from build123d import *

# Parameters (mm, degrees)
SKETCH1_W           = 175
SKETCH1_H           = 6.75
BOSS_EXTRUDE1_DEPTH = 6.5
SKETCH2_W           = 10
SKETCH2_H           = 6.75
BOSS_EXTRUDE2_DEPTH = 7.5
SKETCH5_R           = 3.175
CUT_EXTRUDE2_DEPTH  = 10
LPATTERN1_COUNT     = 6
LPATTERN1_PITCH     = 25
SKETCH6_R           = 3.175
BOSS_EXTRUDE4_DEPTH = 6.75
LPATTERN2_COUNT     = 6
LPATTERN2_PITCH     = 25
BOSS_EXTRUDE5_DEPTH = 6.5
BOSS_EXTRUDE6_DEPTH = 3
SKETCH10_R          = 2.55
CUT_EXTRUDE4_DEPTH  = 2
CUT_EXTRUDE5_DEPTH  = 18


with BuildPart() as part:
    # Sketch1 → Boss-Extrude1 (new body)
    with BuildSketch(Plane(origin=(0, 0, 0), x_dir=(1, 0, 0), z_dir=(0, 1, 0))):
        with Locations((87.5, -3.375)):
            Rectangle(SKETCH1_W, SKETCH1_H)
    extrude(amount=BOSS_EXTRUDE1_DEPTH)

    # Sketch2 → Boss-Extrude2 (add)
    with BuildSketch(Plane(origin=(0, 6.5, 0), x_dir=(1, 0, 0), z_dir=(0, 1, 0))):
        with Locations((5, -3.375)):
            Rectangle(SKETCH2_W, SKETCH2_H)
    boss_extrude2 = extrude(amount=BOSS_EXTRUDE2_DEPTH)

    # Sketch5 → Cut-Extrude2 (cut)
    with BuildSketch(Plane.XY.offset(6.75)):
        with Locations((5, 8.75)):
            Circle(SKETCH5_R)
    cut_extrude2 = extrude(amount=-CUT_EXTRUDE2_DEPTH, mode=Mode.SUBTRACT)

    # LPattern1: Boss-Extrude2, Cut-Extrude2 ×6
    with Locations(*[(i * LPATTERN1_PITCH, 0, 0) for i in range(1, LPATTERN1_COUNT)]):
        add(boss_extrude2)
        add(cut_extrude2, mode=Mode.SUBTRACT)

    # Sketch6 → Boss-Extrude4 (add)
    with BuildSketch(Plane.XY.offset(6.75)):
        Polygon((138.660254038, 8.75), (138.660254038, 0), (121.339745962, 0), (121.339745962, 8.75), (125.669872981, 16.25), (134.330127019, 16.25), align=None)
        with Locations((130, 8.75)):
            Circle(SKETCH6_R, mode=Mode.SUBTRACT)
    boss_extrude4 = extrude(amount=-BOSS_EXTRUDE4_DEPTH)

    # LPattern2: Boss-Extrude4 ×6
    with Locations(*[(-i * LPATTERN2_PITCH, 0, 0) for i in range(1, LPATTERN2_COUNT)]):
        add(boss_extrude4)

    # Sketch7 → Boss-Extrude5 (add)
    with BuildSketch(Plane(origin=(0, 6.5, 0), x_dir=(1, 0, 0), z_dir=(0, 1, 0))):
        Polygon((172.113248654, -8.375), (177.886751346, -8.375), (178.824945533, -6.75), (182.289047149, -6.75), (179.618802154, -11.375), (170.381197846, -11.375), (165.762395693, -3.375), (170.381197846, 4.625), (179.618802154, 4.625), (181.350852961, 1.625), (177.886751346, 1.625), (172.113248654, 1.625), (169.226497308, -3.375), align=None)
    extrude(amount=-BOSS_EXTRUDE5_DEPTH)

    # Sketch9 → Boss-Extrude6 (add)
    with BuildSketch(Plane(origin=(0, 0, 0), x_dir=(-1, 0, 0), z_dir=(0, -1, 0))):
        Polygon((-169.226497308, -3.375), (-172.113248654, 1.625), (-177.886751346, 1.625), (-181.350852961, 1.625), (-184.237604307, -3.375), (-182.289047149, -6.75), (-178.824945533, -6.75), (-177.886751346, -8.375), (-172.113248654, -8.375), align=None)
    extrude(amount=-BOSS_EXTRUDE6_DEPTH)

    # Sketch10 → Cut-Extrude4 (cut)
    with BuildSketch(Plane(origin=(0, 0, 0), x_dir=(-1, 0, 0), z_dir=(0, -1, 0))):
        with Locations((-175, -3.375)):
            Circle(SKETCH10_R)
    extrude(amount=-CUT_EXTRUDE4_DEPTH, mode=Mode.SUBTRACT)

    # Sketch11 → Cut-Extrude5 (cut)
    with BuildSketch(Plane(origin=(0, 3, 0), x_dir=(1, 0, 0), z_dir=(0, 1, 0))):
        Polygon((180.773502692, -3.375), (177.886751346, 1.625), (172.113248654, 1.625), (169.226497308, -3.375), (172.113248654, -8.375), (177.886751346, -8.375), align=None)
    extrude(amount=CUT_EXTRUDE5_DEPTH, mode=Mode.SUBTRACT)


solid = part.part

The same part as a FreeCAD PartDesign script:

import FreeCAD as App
import Part
import Sketcher
from FreeCAD import Vector
Q = App.Units.Quantity

doc = App.newDocument("Part")
body = doc.addObject("PartDesign::Body", "Body")

# Sketch on XZ plane
sketch1 = doc.addObject("Sketcher::SketchObject", "Sketch")
body.addObject(sketch1)
sketch1.AttachmentSupport = (doc.XZ_Plane, [""])
sketch1.MapMode = "FlatFace"
sketch1.addGeometry(Part.LineSegment(Vector(0, 0, 0), Vector(0, 7, 0)), False)
sketch1.addGeometry(Part.LineSegment(Vector(0, 7, 0), Vector(175, 7, 0)), False)
sketch1.addGeometry(Part.LineSegment(Vector(175, 7, 0), Vector(175, 0, 0)), False)
sketch1.addGeometry(Part.LineSegment(Vector(175, 0, 0), Vector(0, 0, 0)), False)
sketch1.addConstraint(Sketcher.Constraint("Coincident", 0, 2, 1, 1))
sketch1.addConstraint(Sketcher.Constraint("Coincident", 1, 2, 2, 1))
sketch1.addConstraint(Sketcher.Constraint("Coincident", 2, 2, 3, 1))
sketch1.addConstraint(Sketcher.Constraint("Coincident", 3, 2, 0, 1))
sketch1.addConstraint(Sketcher.Constraint("Vertical", 0))
sketch1.addConstraint(Sketcher.Constraint("Horizontal", 1))
sketch1.addConstraint(Sketcher.Constraint("Vertical", 2))
sketch1.addConstraint(Sketcher.Constraint("Horizontal", 3))
sketch1.addConstraint(Sketcher.Constraint("Coincident", 3, 2, -1, 1))
sketch1.addConstraint(Sketcher.Constraint("DistanceX", 1, 1, 1, 2, Q("175 mm")))
sketch1.addConstraint(Sketcher.Constraint("DistanceY", 0, 1, 0, 2, Q("6.75 mm")))
pad1 = doc.addObject("PartDesign::Pad", "Pad")
body.addObject(pad1)
pad1.Profile = sketch1
pad1.Length = 6.5
pad1.Reversed = True

# Sketch on XZ plane
sketch2 = doc.addObject("Sketcher::SketchObject", "Sketch001")
body.addObject(sketch2)
sketch2.AttachmentSupport = (doc.XZ_Plane, [""])
sketch2.MapMode = "FlatFace"
sketch2.AttachmentOffset = App.Placement(Vector(0, 0, -6.5), App.Rotation())
sketch2.addGeometry(Part.LineSegment(Vector(0, 0, 0), Vector(0, 7, 0)), False)
sketch2.addGeometry(Part.LineSegment(Vector(0, 7, 0), Vector(10, 7, 0)), False)
sketch2.addGeometry(Part.LineSegment(Vector(10, 7, 0), Vector(10, 0, 0)), False)
sketch2.addGeometry(Part.LineSegment(Vector(10, 0, 0), Vector(0, 0, 0)), False)
sketch2.addConstraint(Sketcher.Constraint("Coincident", 0, 2, 1, 1))
sketch2.addConstraint(Sketcher.Constraint("Coincident", 1, 2, 2, 1))
sketch2.addConstraint(Sketcher.Constraint("Coincident", 2, 2, 3, 1))
sketch2.addConstraint(Sketcher.Constraint("Coincident", 3, 2, 0, 1))
sketch2.addConstraint(Sketcher.Constraint("Vertical", 0))
sketch2.addConstraint(Sketcher.Constraint("Horizontal", 1))
sketch2.addConstraint(Sketcher.Constraint("Vertical", 2))
sketch2.addConstraint(Sketcher.Constraint("Horizontal", 3))
sketch2.addConstraint(Sketcher.Constraint("Coincident", 3, 2, -1, 1))
sketch2.addConstraint(Sketcher.Constraint("DistanceX", 1, 1, 1, 2, Q("10 mm")))
sketch2.addConstraint(Sketcher.Constraint("DistanceY", 0, 1, 0, 2, Q("6.75 mm")))
pad2 = doc.addObject("PartDesign::Pad", "Pad001")
body.addObject(pad2)
pad2.Profile = sketch2
pad2.Length = 7.5
pad2.Reversed = True

# Sketch on XY plane
sketch3 = doc.addObject("Sketcher::SketchObject", "Sketch002")
body.addObject(sketch3)
sketch3.AttachmentSupport = (doc.XY_Plane, [""])
sketch3.MapMode = "FlatFace"
sketch3.AttachmentOffset = App.Placement(Vector(0, 0, 6.75), App.Rotation())
sketch3.addGeometry(Part.Circle(Vector(5, 8.8, 0), Vector(0, 0, 1), 3.2), False)
sketch3.addConstraint(Sketcher.Constraint("Diameter", 0, Q("6.35 mm")))
sketch3.addConstraint(Sketcher.Constraint("DistanceX", -1, 1, 0, 3, Q("5 mm")))
sketch3.addConstraint(Sketcher.Constraint("DistanceY", -1, 1, 0, 3, Q("8.75 mm")))
pocket1 = doc.addObject("PartDesign::Pocket", "Pocket")
body.addObject(pocket1)
pocket1.Profile = sketch3
pocket1.Length = 10
doc.recompute()

linearpattern = doc.addObject("PartDesign::LinearPattern", "LinearPattern")
body.addObject(linearpattern)
linearpattern.Originals = [pad2, pocket1]
linearpattern.Direction = (doc.X_Axis, [""])
linearpattern.Mode = "offset"
linearpattern.Offset = 25
linearpattern.Occurrences = 6
body.Tip = linearpattern

# Sketch on XY plane
sketch4 = doc.addObject("Sketcher::SketchObject", "Sketch003")
body.addObject(sketch4)
sketch4.AttachmentSupport = (doc.XY_Plane, [""])
sketch4.MapMode = "FlatFace"
sketch4.AttachmentOffset = App.Placement(Vector(0, 0, 6.75), App.Rotation())
sketch4.addGeometry(Part.LineSegment(Vector(138.7, 0, 0), Vector(138.7, 8.8, 0)), False)
sketch4.addGeometry(Part.LineSegment(Vector(138.7, 8.8, 0), Vector(134.3, 16.2, 0)), False)
sketch4.addGeometry(Part.LineSegment(Vector(134.3, 16.2, 0), Vector(125.7, 16.2, 0)), False)
sketch4.addGeometry(Part.LineSegment(Vector(125.7, 16.2, 0), Vector(121.3, 8.8, 0)), False)
sketch4.addGeometry(Part.LineSegment(Vector(121.3, 8.8, 0), Vector(121.3, 0, 0)), False)
sketch4.addGeometry(Part.LineSegment(Vector(121.3, 0, 0), Vector(138.7, 0, 0)), False)
sketch4.addGeometry(Part.Circle(Vector(130, 8.8, 0), Vector(0, 0, 1), 3.2), False)
sketch4.addConstraint(Sketcher.Constraint("Coincident", 0, 2, 1, 1))
sketch4.addConstraint(Sketcher.Constraint("Coincident", 1, 2, 2, 1))
sketch4.addConstraint(Sketcher.Constraint("Coincident", 2, 2, 3, 1))
sketch4.addConstraint(Sketcher.Constraint("Coincident", 3, 2, 4, 1))
sketch4.addConstraint(Sketcher.Constraint("Coincident", 4, 2, 5, 1))
sketch4.addConstraint(Sketcher.Constraint("Coincident", 5, 2, 0, 1))
sketch4.addConstraint(Sketcher.Constraint("Vertical", 0))
sketch4.addConstraint(Sketcher.Constraint("Horizontal", 2))
sketch4.addConstraint(Sketcher.Constraint("Vertical", 4))
sketch4.addConstraint(Sketcher.Constraint("Horizontal", 5))
sketch4.addConstraint(Sketcher.Constraint("PointOnObject", 4, 2, -1))
sketch4.addConstraint(Sketcher.Constraint("Horizontal", 6, 3, 0, 2))
sketch4.addConstraint(Sketcher.Constraint("Horizontal", 0, 2, 3, 2))
sketch4.addConstraint(Sketcher.Constraint("Equal", 1, 3))
sketch4.addConstraint(Sketcher.Constraint("Diameter", 6, Q("6.35 mm")))
sketch4.addConstraint(Sketcher.Constraint("Angle", 1, Q("120 deg")))
sketch4.addConstraint(Sketcher.Constraint("DistanceX", -1, 1, 6, 3, Q("130 mm")))
sketch4.addConstraint(Sketcher.Constraint("DistanceY", 0, 1, 0, 2, Q("8.75 mm")))
sketch4.addConstraint(Sketcher.Constraint("DistanceY", 6, 3, 1, 2, Q("7.5 mm")))
sketch4.addConstraint(Sketcher.Constraint("DistanceX", 5, 1, 5, 2, Q("17.320508 mm")))
sketch4.addConstraint(Sketcher.Constraint("DistanceX", -1, 1, 0, 2, Q("138.660254 mm")))
pad3 = doc.addObject("PartDesign::Pad", "Pad002")
body.addObject(pad3)
pad3.Profile = sketch4
pad3.Length = 6.75
pad3.Reversed = True
doc.recompute()

linearpattern2 = doc.addObject("PartDesign::LinearPattern", "LinearPattern001")
body.addObject(linearpattern2)
linearpattern2.Originals = [pad3]
linearpattern2.Direction = (doc.X_Axis, [""])
linearpattern2.Mode = "offset"
linearpattern2.Offset = 25
linearpattern2.Occurrences = 6
linearpattern2.Reversed = True
body.Tip = linearpattern2

# Sketch on XZ plane
sketch5 = doc.addObject("Sketcher::SketchObject", "Sketch004")
body.addObject(sketch5)
sketch5.AttachmentSupport = (doc.XZ_Plane, [""])
sketch5.MapMode = "FlatFace"
sketch5.AttachmentOffset = App.Placement(Vector(0, 0, -6.5), App.Rotation())
sketch5.addGeometry(Part.LineSegment(Vector(177.9, 8.4, 0), Vector(172.1, 8.4, 0)), False)
sketch5.addGeometry(Part.LineSegment(Vector(172.1, 8.4, 0), Vector(169.2, 3.4, 0)), False)
sketch5.addGeometry(Part.LineSegment(Vector(169.2, 3.4, 0), Vector(172.1, -1.6, 0)), False)
sketch5.addGeometry(Part.LineSegment(Vector(172.1, -1.6, 0), Vector(181.4, -1.6, 0)), False)
sketch5.addGeometry(Part.LineSegment(Vector(181.4, -1.6, 0), Vector(179.6, -4.6, 0)), False)
sketch5.addGeometry(Part.LineSegment(Vector(179.6, -4.6, 0), Vector(170.4, -4.6, 0)), False)
sketch5.addGeometry(Part.LineSegment(Vector(170.4, -4.6, 0), Vector(165.8, 3.4, 0)), False)
sketch5.addGeometry(Part.LineSegment(Vector(165.8, 3.4, 0), Vector(170.4, 11.4, 0)), False)
sketch5.addGeometry(Part.LineSegment(Vector(170.4, 11.4, 0), Vector(179.6, 11.4, 0)), False)
sketch5.addGeometry(Part.LineSegment(Vector(179.6, 11.4, 0), Vector(182.3, 6.8, 0)), False)
sketch5.addGeometry(Part.LineSegment(Vector(182.3, 6.8, 0), Vector(178.8, 6.8, 0)), False)
sketch5.addGeometry(Part.LineSegment(Vector(178.8, 6.8, 0), Vector(177.9, 8.4, 0)), False)
sketch5.addConstraint(Sketcher.Constraint("Coincident", 0, 2, 1, 1))
sketch5.addConstraint(Sketcher.Constraint("Coincident", 1, 2, 2, 1))
sketch5.addConstraint(Sketcher.Constraint("Coincident", 2, 2, 3, 1))
sketch5.addConstraint(Sketcher.Constraint("Coincident", 3, 2, 4, 1))
sketch5.addConstraint(Sketcher.Constraint("Coincident", 4, 2, 5, 1))
sketch5.addConstraint(Sketcher.Constraint("Coincident", 5, 2, 6, 1))
sketch5.addConstraint(Sketcher.Constraint("Coincident", 6, 2, 7, 1))
sketch5.addConstraint(Sketcher.Constraint("Coincident", 7, 2, 8, 1))
sketch5.addConstraint(Sketcher.Constraint("Coincident", 8, 2, 9, 1))
sketch5.addConstraint(Sketcher.Constraint("Coincident", 9, 2, 10, 1))
sketch5.addConstraint(Sketcher.Constraint("Coincident", 10, 2, 11, 1))
sketch5.addConstraint(Sketcher.Constraint("Coincident", 11, 2, 0, 1))
sketch5.addConstraint(Sketcher.Constraint("Horizontal", 0))
sketch5.addConstraint(Sketcher.Constraint("Horizontal", 3))
sketch5.addConstraint(Sketcher.Constraint("Horizontal", 5))
sketch5.addConstraint(Sketcher.Constraint("Horizontal", 8))
sketch5.addConstraint(Sketcher.Constraint("Horizontal", 10))
sketch5.addConstraint(Sketcher.Constraint("Parallel", 1, 4))
sketch5.addConstraint(Sketcher.Constraint("Parallel", 2, 6))
sketch5.addConstraint(Sketcher.Constraint("Parallel", 4, 7))
sketch5.addConstraint(Sketcher.Constraint("Parallel", 6, 9))
sketch5.addConstraint(Sketcher.Constraint("Parallel", 9, 11))
sketch5.addConstraint(Sketcher.Constraint("Horizontal", 1, 2, 6, 2))
sketch5.addConstraint(Sketcher.Constraint("Vertical", 0, 2, 2, 2))
sketch5.addConstraint(Sketcher.Constraint("Vertical", 5, 2, 7, 2))
sketch5.addConstraint(Sketcher.Constraint("Vertical", 4, 2, 8, 2))
sketch5.addConstraint(Sketcher.Constraint("Equal", 3, 5))
sketch5.addConstraint(Sketcher.Constraint("Equal", 1, 2))
sketch5.addConstraint(Sketcher.Constraint("Angle", 1, Q("-120 deg")))
sketch5.addConstraint(Sketcher.Constraint("DistanceY", 1, 2, 0, 2, Q("5 mm")))
sketch5.addConstraint(Sketcher.Constraint("DistanceY", 4, 2, 3, 2, Q("3 mm")))
sketch5.addConstraint(Sketcher.Constraint("DistanceY", -1, 1, 9, 2, Q("6.75 mm")))
sketch5.addConstraint(Sketcher.Constraint("DistanceX", 10, 2, 10, 1, Q("3.464102 mm")))
sketch5.addConstraint(Sketcher.Constraint("DistanceY", -1, 1, 0, 2, Q("8.375 mm")))
sketch5.addConstraint(Sketcher.Constraint("DistanceX", 0, 2, 9, 2, Q("10.175798 mm")))
sketch5.addConstraint(Sketcher.Constraint("DistanceX", -1, 1, 0, 2, Q("172.113249 mm")))
pad4 = doc.addObject("PartDesign::Pad", "Pad003")
body.addObject(pad4)
pad4.Profile = sketch5
pad4.Length = 6.5

# Sketch on XZ plane
sketch6 = doc.addObject("Sketcher::SketchObject", "Sketch005")
body.addObject(sketch6)
sketch6.AttachmentSupport = (doc.XZ_Plane, [""])
sketch6.MapMode = "FlatFace"
sketch6.addGeometry(Part.LineSegment(Vector(169.2, 3.4, 0), Vector(172.1, -1.6, 0)), False)
sketch6.addGeometry(Part.LineSegment(Vector(172.1, -1.6, 0), Vector(181.4, -1.6, 0)), False)
sketch6.addGeometry(Part.LineSegment(Vector(181.4, -1.6, 0), Vector(184.2, 3.4, 0)), False)
sketch6.addGeometry(Part.LineSegment(Vector(184.2, 3.4, 0), Vector(182.3, 6.8, 0)), False)
sketch6.addGeometry(Part.LineSegment(Vector(182.3, 6.8, 0), Vector(178.8, 6.8, 0)), False)
sketch6.addGeometry(Part.LineSegment(Vector(178.8, 6.8, 0), Vector(177.9, 8.4, 0)), False)
sketch6.addGeometry(Part.LineSegment(Vector(177.9, 8.4, 0), Vector(172.1, 8.4, 0)), False)
sketch6.addGeometry(Part.LineSegment(Vector(172.1, 8.4, 0), Vector(169.2, 3.4, 0)), False)
sketch6.addConstraint(Sketcher.Constraint("Coincident", 0, 2, 1, 1))
sketch6.addConstraint(Sketcher.Constraint("Coincident", 1, 2, 2, 1))
sketch6.addConstraint(Sketcher.Constraint("Coincident", 2, 2, 3, 1))
sketch6.addConstraint(Sketcher.Constraint("Coincident", 3, 2, 4, 1))
sketch6.addConstraint(Sketcher.Constraint("Coincident", 4, 2, 5, 1))
sketch6.addConstraint(Sketcher.Constraint("Coincident", 5, 2, 6, 1))
sketch6.addConstraint(Sketcher.Constraint("Coincident", 6, 2, 7, 1))
sketch6.addConstraint(Sketcher.Constraint("Coincident", 7, 2, 0, 1))
sketch6.addConstraint(Sketcher.Constraint("Horizontal", 1))
sketch6.addConstraint(Sketcher.Constraint("Horizontal", 4))
sketch6.addConstraint(Sketcher.Constraint("Horizontal", 6))
sketch6.addConstraint(Sketcher.Constraint("Parallel", 0, 3))
sketch6.addConstraint(Sketcher.Constraint("Parallel", 3, 5))
sketch6.addConstraint(Sketcher.Constraint("Parallel", 2, 7))
sketch6.addConstraint(Sketcher.Constraint("Horizontal", 2, 2, 7, 2))
sketch6.addConstraint(Sketcher.Constraint("Vertical", 0, 2, 6, 2))
sketch6.addConstraint(Sketcher.Constraint("Equal", 0, 2))
sketch6.addConstraint(Sketcher.Constraint("Angle", 0, Q("-60 deg")))
sketch6.addConstraint(Sketcher.Constraint("DistanceY", 1, 2, 2, 2, Q("5 mm")))
sketch6.addConstraint(Sketcher.Constraint("DistanceY", -1, 1, 3, 2, Q("6.75 mm")))
sketch6.addConstraint(Sketcher.Constraint("DistanceX", 4, 2, 4, 1, Q("3.464102 mm")))
sketch6.addConstraint(Sketcher.Constraint("DistanceY", 0, 2, -1, 1, Q("1.625 mm")))
sketch6.addConstraint(Sketcher.Constraint("DistanceX", 0, 2, 3, 2, Q("10.175798 mm")))
sketch6.addConstraint(Sketcher.Constraint("DistanceX", -1, 1, 0, 2, Q("172.113249 mm")))
pad5 = doc.addObject("PartDesign::Pad", "Pad004")
body.addObject(pad5)
pad5.Profile = sketch6
pad5.Length = 3
pad5.Reversed = True

# Sketch on XZ plane
sketch7 = doc.addObject("Sketcher::SketchObject", "Sketch006")
body.addObject(sketch7)
sketch7.AttachmentSupport = (doc.XZ_Plane, [""])
sketch7.MapMode = "FlatFace"
sketch7.addGeometry(Part.Circle(Vector(175, 3.4, 0), Vector(0, 0, 1), 2.5), False)
sketch7.addConstraint(Sketcher.Constraint("Diameter", 0, Q("5.1 mm")))
sketch7.addConstraint(Sketcher.Constraint("DistanceX", -1, 1, 0, 3, Q("175 mm")))
sketch7.addConstraint(Sketcher.Constraint("DistanceY", -1, 1, 0, 3, Q("3.375 mm")))
pocket2 = doc.addObject("PartDesign::Pocket", "Pocket001")
body.addObject(pocket2)
pocket2.Profile = sketch7
pocket2.Length = 2

# Sketch on XZ plane
sketch8 = doc.addObject("Sketcher::SketchObject", "Sketch007")
body.addObject(sketch8)
sketch8.AttachmentSupport = (doc.XZ_Plane, [""])
sketch8.MapMode = "FlatFace"
sketch8.AttachmentOffset = App.Placement(Vector(0, 0, -3), App.Rotation())
sketch8.addGeometry(Part.LineSegment(Vector(181, 3, 0), Vector(178, -2, 0)), False)
sketch8.addGeometry(Part.LineSegment(Vector(178, -2, 0), Vector(172, -2, 0)), False)
sketch8.addGeometry(Part.LineSegment(Vector(172, -2, 0), Vector(169, 3, 0)), False)
sketch8.addGeometry(Part.LineSegment(Vector(169, 3, 0), Vector(172, 8, 0)), False)
sketch8.addGeometry(Part.LineSegment(Vector(172, 8, 0), Vector(178, 8, 0)), False)
sketch8.addGeometry(Part.LineSegment(Vector(178, 8, 0), Vector(181, 3, 0)), False)
sketch8.addConstraint(Sketcher.Constraint("Coincident", 0, 2, 1, 1))
sketch8.addConstraint(Sketcher.Constraint("Coincident", 1, 2, 2, 1))
sketch8.addConstraint(Sketcher.Constraint("Coincident", 2, 2, 3, 1))
sketch8.addConstraint(Sketcher.Constraint("Coincident", 3, 2, 4, 1))
sketch8.addConstraint(Sketcher.Constraint("Coincident", 4, 2, 5, 1))
sketch8.addConstraint(Sketcher.Constraint("Coincident", 5, 2, 0, 1))
sketch8.addConstraint(Sketcher.Constraint("Horizontal", 1))
sketch8.addConstraint(Sketcher.Constraint("Horizontal", 4))
sketch8.addConstraint(Sketcher.Constraint("Parallel", 0, 3))
sketch8.addConstraint(Sketcher.Constraint("Parallel", 2, 5))
sketch8.addConstraint(Sketcher.Constraint("Horizontal", 2, 2, 5, 2))
sketch8.addConstraint(Sketcher.Constraint("Vertical", 1, 2, 3, 2))
sketch8.addConstraint(Sketcher.Constraint("Vertical", 0, 2, 4, 2))
sketch8.addConstraint(Sketcher.Constraint("Angle", 0, Q("-120 deg")))
sketch8.addConstraint(Sketcher.Constraint("DistanceY", 1, 2, 2, 2, Q("5 mm")))
sketch8.addConstraint(Sketcher.Constraint("DistanceY", 0, 2, -1, 1, Q("1.625 mm")))
sketch8.addConstraint(Sketcher.Constraint("DistanceX", 1, 2, 1, 1, Q("5.773503 mm")))
sketch8.addConstraint(Sketcher.Constraint("DistanceX", -1, 1, 0, 2, Q("177.886751 mm")))
pocket3 = doc.addObject("PartDesign::Pocket", "Pocket002")
body.addObject(pocket3)
pocket3.Profile = sketch8
pocket3.Length = 18

doc.recompute()
